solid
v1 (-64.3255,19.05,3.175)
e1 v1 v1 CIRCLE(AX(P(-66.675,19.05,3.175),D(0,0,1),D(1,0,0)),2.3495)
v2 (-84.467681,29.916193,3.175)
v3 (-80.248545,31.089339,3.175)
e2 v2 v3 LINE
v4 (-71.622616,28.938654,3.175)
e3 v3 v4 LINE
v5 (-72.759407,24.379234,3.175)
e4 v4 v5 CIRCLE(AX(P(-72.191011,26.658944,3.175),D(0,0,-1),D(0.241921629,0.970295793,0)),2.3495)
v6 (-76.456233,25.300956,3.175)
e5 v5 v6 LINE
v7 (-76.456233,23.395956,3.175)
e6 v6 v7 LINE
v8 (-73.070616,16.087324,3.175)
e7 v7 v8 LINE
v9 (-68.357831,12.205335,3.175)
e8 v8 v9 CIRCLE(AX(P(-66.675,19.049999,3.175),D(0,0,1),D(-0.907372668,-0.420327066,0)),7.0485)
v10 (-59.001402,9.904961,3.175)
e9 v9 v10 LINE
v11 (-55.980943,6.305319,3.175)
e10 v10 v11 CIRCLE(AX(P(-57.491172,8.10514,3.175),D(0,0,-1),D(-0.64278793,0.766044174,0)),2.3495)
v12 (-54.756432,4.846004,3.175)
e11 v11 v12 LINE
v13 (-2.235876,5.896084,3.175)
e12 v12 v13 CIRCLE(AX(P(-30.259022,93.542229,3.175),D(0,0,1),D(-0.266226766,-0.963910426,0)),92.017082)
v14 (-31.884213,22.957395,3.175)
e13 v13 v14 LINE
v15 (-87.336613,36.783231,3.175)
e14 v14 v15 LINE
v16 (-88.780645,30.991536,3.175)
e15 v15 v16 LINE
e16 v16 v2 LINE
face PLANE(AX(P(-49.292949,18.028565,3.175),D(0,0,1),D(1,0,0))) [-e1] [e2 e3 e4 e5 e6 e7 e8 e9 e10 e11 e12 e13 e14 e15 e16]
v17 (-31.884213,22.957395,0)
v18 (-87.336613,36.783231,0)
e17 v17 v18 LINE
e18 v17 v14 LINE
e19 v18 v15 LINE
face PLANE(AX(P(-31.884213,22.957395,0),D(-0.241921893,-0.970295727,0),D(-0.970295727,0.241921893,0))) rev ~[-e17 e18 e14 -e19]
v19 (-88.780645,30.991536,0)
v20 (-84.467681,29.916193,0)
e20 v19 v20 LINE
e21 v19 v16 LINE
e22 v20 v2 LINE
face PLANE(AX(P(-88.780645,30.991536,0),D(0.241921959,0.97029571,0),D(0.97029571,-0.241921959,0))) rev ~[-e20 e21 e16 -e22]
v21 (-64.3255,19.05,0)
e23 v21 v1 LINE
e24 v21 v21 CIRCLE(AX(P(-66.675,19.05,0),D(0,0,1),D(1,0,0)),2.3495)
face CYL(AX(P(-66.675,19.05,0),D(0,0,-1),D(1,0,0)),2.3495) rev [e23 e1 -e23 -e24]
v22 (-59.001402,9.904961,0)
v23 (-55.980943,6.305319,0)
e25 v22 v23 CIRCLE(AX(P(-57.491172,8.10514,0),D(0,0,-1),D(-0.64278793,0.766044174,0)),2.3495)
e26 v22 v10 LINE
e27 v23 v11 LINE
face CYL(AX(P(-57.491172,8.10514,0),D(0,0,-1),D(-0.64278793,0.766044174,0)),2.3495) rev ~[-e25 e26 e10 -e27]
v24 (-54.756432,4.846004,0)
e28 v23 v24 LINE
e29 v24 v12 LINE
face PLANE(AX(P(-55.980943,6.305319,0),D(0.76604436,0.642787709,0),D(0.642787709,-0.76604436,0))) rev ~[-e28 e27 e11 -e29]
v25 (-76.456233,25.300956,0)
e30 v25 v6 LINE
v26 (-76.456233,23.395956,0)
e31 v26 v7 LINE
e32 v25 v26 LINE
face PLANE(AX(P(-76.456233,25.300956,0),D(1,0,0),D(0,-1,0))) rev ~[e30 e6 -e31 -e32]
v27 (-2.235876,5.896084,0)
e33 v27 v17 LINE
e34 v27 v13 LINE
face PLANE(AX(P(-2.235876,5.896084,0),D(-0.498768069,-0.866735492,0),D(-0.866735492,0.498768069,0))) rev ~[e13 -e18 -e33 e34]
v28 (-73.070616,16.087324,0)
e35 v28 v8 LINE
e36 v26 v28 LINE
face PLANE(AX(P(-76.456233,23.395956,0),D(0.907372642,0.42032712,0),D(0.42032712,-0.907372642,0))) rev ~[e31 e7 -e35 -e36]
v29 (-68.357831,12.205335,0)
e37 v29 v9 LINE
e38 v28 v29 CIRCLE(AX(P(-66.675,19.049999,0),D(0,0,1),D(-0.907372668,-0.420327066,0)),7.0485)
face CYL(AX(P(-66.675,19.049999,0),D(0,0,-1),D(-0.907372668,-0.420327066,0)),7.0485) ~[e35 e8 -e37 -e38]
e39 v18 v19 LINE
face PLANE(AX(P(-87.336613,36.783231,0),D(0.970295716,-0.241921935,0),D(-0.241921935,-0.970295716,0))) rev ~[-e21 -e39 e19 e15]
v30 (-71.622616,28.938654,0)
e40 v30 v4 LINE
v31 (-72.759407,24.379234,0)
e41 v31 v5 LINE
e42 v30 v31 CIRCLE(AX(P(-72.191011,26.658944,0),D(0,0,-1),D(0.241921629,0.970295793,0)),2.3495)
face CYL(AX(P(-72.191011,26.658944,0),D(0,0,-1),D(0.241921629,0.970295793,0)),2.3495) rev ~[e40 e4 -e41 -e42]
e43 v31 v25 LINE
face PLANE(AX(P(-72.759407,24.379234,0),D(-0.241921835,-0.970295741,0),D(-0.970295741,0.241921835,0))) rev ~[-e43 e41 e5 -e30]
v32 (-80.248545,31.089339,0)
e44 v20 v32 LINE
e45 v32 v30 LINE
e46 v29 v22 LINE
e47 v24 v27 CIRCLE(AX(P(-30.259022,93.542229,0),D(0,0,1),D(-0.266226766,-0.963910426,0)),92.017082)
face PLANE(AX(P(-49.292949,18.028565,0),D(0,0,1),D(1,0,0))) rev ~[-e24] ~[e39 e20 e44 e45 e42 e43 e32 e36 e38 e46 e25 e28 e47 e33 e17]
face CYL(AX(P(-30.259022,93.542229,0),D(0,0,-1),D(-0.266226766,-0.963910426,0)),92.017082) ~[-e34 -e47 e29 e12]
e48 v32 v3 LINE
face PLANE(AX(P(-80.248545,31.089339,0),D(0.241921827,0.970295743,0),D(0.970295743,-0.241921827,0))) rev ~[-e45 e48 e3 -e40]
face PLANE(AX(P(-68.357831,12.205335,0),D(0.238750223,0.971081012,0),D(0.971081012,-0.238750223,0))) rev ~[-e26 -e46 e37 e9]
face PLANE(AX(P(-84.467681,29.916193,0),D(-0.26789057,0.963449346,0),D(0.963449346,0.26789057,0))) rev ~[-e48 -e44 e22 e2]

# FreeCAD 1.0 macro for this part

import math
import FreeCAD as App
import Part
import Sketcher

V = App.Vector
Q = App.Units.Quantity

doc = App.newDocument("Part")
body = doc.addObject("PartDesign::Body", "Body")

sketch1 = body.newObject("Sketcher::SketchObject", "Sketch")
sketch1.AttachmentSupport = (doc.getObject("XY_Plane"), [""])
sketch1.MapMode = "FlatFace"
sketch1.addGeometry([
    Part.ArcOfCircle(Part.Circle(V(-57.5, 8.1, 0), V(0, 0, 1), 2.3), math.radians(-50), math.radians(130)),
    Part.LineSegment(V(-56, 6.3, 0), V(-54.8, 4.8, 0)),
    Part.ArcOfCircle(Part.Circle(V(-30.3, 93.5, 0), V(0, 0, 1), 92), math.radians(-105), math.radians(-72)),
    Part.LineSegment(V(-2.2, 5.9, 0), V(-31.9, 23, 0)),
    Part.LineSegment(V(-31.9, 23, 0), V(-87.3, 36.8, 0)),
    Part.LineSegment(V(-87.3, 36.8, 0), V(-88.8, 31, 0)),
    Part.LineSegment(V(-88.8, 31, 0), V(-84.5, 29.9, 0)),
    Part.LineSegment(V(-84.5, 29.9, 0), V(-80.2, 31.1, 0)),
    Part.LineSegment(V(-80.2, 31.1, 0), V(-71.6, 28.9, 0)),
    Part.ArcOfCircle(Part.Circle(V(-72.2, 26.7, 0), V(0, 0, 1), 2.3), math.radians(-104), math.radians(76)),
    Part.LineSegment(V(-72.8, 24.4, 0), V(-76.5, 25.3, 0)),
    Part.LineSegment(V(-76.5, 25.3, 0), V(-76.5, 23.4, 0)),
    Part.LineSegment(V(-76.5, 23.4, 0), V(-73.1, 16.1, 0)),
    Part.ArcOfCircle(Part.Circle(V(-66.7, 19, 0), V(0, 0, 1), 7), math.radians(-155), math.radians(-104)),
    Part.LineSegment(V(-68.4, 12.2, 0), V(-59, 9.9, 0)),
    Part.Circle(V(-66.7, 19.1, 0), V(0, 0, 1), 2.3),
], False)
sketch1.addConstraint([
    Sketcher.Constraint("Coincident", 0, 1, 1, 1),
    Sketcher.Constraint("Coincident", 1, 2, 2, 1),
    Sketcher.Constraint("Coincident", 2, 2, 3, 1),
    Sketcher.Constraint("Coincident", 3, 2, 4, 1),
    Sketcher.Constraint("Coincident", 4, 2, 5, 1),
    Sketcher.Constraint("Coincident", 5, 2, 6, 1),
    Sketcher.Constraint("Coincident", 6, 2, 7, 1),
    Sketcher.Constraint("Coincident", 7, 2, 8, 1),
    Sketcher.Constraint("Tangent", 8, 2, 9, 2),
    Sketcher.Constraint("Tangent", 9, 1, 10, 1),
    Sketcher.Constraint("Coincident", 10, 2, 11, 1),
    Sketcher.Constraint("Coincident", 11, 2, 12, 1),
    Sketcher.Constraint("Tangent", 12, 2, 13, 1),
    Sketcher.Constraint("Tangent", 13, 2, 14, 1),
    Sketcher.Constraint("Coincident", 14, 2, 0, 2),
    Sketcher.Constraint("Vertical", 11),
    Sketcher.Constraint("Coincident", 15, 3, 13, 3),
    Sketcher.Constraint("Equal", 0, 9),
    Sketcher.Constraint("Equal", 9, 15),
    Sketcher.Constraint("Perpendicular", 4, 5),
    Sketcher.Constraint("Perpendicular", 5, 6),
    Sketcher.Constraint("Parallel", 6, 8),
    Sketcher.Constraint("Parallel", 8, 10),
    Sketcher.Constraint("Diameter", 15, Q("0.185 in")),
    Sketcher.Constraint("Angle", 1, Q("-49.999993 deg")),
    Sketcher.Constraint("Angle", 4, Q("166 deg")),
    Sketcher.Constraint("Radius", 13, Q("0.2775 in")),
    Sketcher.Constraint("Distance", 4, Q("2.25 in")),
    Sketcher.Constraint("Distance", 8, Q("0.35 in")),
    Sketcher.Constraint("Distance", 10, Q("0.15 in")),
    Sketcher.Constraint("DistanceY", 11, 2, 11, 1, Q("0.075 in")),
    Sketcher.Constraint("DistanceY", -1, 1, 13, 3, Q("0.75 in")),
    Sketcher.Constraint("Distance", 1, Q("0.075 in")),
    Sketcher.Constraint("Distance", 5, Q("0.235 in")),
    Sketcher.Constraint("Distance", 6, Q("0.175 in")),
    Sketcher.Constraint("DistanceX", 13, 3, -1, 1, Q("2.625 in")),
    Sketcher.Constraint("DistanceY", -1, 1, 0, 3, Q("0.3191 in")),
    Sketcher.Constraint("DistanceX", 2, 3, -1, 1, Q("1.1913001 in")),
    Sketcher.Constraint("Radius", 2, Q("92.017082 mm")),
    Sketcher.Constraint("Distance", 7, Q("4.379199 mm")),
    Sketcher.Constraint("DistanceX", 5, 2, 7, 2, Q("8.5321 mm")),
    Sketcher.Constraint("DistanceY", 13, 2, 9, 1, Q("12.173899 mm")),
    Sketcher.Constraint("DistanceX", 13, 3, 14, 2, Q("7.673598 mm")),
    Sketcher.Constraint("Distance", 12, Q("8.054719 mm")),
    Sketcher.Constraint("DistanceX", 0, 3, -1, 1, Q("57.491172 mm")),
    Sketcher.Constraint("DistanceY", -1, 1, 2, 3, Q("93.542229 mm")),
    Sketcher.Constraint("DistanceY", 1, 2, 2, 2, Q("1.05008 mm")),
])
pad1 = body.newObject("PartDesign::Pad", "Pad")
pad1.Profile = sketch1
pad1.Length = Q("0.125 in")

doc.recompute()
